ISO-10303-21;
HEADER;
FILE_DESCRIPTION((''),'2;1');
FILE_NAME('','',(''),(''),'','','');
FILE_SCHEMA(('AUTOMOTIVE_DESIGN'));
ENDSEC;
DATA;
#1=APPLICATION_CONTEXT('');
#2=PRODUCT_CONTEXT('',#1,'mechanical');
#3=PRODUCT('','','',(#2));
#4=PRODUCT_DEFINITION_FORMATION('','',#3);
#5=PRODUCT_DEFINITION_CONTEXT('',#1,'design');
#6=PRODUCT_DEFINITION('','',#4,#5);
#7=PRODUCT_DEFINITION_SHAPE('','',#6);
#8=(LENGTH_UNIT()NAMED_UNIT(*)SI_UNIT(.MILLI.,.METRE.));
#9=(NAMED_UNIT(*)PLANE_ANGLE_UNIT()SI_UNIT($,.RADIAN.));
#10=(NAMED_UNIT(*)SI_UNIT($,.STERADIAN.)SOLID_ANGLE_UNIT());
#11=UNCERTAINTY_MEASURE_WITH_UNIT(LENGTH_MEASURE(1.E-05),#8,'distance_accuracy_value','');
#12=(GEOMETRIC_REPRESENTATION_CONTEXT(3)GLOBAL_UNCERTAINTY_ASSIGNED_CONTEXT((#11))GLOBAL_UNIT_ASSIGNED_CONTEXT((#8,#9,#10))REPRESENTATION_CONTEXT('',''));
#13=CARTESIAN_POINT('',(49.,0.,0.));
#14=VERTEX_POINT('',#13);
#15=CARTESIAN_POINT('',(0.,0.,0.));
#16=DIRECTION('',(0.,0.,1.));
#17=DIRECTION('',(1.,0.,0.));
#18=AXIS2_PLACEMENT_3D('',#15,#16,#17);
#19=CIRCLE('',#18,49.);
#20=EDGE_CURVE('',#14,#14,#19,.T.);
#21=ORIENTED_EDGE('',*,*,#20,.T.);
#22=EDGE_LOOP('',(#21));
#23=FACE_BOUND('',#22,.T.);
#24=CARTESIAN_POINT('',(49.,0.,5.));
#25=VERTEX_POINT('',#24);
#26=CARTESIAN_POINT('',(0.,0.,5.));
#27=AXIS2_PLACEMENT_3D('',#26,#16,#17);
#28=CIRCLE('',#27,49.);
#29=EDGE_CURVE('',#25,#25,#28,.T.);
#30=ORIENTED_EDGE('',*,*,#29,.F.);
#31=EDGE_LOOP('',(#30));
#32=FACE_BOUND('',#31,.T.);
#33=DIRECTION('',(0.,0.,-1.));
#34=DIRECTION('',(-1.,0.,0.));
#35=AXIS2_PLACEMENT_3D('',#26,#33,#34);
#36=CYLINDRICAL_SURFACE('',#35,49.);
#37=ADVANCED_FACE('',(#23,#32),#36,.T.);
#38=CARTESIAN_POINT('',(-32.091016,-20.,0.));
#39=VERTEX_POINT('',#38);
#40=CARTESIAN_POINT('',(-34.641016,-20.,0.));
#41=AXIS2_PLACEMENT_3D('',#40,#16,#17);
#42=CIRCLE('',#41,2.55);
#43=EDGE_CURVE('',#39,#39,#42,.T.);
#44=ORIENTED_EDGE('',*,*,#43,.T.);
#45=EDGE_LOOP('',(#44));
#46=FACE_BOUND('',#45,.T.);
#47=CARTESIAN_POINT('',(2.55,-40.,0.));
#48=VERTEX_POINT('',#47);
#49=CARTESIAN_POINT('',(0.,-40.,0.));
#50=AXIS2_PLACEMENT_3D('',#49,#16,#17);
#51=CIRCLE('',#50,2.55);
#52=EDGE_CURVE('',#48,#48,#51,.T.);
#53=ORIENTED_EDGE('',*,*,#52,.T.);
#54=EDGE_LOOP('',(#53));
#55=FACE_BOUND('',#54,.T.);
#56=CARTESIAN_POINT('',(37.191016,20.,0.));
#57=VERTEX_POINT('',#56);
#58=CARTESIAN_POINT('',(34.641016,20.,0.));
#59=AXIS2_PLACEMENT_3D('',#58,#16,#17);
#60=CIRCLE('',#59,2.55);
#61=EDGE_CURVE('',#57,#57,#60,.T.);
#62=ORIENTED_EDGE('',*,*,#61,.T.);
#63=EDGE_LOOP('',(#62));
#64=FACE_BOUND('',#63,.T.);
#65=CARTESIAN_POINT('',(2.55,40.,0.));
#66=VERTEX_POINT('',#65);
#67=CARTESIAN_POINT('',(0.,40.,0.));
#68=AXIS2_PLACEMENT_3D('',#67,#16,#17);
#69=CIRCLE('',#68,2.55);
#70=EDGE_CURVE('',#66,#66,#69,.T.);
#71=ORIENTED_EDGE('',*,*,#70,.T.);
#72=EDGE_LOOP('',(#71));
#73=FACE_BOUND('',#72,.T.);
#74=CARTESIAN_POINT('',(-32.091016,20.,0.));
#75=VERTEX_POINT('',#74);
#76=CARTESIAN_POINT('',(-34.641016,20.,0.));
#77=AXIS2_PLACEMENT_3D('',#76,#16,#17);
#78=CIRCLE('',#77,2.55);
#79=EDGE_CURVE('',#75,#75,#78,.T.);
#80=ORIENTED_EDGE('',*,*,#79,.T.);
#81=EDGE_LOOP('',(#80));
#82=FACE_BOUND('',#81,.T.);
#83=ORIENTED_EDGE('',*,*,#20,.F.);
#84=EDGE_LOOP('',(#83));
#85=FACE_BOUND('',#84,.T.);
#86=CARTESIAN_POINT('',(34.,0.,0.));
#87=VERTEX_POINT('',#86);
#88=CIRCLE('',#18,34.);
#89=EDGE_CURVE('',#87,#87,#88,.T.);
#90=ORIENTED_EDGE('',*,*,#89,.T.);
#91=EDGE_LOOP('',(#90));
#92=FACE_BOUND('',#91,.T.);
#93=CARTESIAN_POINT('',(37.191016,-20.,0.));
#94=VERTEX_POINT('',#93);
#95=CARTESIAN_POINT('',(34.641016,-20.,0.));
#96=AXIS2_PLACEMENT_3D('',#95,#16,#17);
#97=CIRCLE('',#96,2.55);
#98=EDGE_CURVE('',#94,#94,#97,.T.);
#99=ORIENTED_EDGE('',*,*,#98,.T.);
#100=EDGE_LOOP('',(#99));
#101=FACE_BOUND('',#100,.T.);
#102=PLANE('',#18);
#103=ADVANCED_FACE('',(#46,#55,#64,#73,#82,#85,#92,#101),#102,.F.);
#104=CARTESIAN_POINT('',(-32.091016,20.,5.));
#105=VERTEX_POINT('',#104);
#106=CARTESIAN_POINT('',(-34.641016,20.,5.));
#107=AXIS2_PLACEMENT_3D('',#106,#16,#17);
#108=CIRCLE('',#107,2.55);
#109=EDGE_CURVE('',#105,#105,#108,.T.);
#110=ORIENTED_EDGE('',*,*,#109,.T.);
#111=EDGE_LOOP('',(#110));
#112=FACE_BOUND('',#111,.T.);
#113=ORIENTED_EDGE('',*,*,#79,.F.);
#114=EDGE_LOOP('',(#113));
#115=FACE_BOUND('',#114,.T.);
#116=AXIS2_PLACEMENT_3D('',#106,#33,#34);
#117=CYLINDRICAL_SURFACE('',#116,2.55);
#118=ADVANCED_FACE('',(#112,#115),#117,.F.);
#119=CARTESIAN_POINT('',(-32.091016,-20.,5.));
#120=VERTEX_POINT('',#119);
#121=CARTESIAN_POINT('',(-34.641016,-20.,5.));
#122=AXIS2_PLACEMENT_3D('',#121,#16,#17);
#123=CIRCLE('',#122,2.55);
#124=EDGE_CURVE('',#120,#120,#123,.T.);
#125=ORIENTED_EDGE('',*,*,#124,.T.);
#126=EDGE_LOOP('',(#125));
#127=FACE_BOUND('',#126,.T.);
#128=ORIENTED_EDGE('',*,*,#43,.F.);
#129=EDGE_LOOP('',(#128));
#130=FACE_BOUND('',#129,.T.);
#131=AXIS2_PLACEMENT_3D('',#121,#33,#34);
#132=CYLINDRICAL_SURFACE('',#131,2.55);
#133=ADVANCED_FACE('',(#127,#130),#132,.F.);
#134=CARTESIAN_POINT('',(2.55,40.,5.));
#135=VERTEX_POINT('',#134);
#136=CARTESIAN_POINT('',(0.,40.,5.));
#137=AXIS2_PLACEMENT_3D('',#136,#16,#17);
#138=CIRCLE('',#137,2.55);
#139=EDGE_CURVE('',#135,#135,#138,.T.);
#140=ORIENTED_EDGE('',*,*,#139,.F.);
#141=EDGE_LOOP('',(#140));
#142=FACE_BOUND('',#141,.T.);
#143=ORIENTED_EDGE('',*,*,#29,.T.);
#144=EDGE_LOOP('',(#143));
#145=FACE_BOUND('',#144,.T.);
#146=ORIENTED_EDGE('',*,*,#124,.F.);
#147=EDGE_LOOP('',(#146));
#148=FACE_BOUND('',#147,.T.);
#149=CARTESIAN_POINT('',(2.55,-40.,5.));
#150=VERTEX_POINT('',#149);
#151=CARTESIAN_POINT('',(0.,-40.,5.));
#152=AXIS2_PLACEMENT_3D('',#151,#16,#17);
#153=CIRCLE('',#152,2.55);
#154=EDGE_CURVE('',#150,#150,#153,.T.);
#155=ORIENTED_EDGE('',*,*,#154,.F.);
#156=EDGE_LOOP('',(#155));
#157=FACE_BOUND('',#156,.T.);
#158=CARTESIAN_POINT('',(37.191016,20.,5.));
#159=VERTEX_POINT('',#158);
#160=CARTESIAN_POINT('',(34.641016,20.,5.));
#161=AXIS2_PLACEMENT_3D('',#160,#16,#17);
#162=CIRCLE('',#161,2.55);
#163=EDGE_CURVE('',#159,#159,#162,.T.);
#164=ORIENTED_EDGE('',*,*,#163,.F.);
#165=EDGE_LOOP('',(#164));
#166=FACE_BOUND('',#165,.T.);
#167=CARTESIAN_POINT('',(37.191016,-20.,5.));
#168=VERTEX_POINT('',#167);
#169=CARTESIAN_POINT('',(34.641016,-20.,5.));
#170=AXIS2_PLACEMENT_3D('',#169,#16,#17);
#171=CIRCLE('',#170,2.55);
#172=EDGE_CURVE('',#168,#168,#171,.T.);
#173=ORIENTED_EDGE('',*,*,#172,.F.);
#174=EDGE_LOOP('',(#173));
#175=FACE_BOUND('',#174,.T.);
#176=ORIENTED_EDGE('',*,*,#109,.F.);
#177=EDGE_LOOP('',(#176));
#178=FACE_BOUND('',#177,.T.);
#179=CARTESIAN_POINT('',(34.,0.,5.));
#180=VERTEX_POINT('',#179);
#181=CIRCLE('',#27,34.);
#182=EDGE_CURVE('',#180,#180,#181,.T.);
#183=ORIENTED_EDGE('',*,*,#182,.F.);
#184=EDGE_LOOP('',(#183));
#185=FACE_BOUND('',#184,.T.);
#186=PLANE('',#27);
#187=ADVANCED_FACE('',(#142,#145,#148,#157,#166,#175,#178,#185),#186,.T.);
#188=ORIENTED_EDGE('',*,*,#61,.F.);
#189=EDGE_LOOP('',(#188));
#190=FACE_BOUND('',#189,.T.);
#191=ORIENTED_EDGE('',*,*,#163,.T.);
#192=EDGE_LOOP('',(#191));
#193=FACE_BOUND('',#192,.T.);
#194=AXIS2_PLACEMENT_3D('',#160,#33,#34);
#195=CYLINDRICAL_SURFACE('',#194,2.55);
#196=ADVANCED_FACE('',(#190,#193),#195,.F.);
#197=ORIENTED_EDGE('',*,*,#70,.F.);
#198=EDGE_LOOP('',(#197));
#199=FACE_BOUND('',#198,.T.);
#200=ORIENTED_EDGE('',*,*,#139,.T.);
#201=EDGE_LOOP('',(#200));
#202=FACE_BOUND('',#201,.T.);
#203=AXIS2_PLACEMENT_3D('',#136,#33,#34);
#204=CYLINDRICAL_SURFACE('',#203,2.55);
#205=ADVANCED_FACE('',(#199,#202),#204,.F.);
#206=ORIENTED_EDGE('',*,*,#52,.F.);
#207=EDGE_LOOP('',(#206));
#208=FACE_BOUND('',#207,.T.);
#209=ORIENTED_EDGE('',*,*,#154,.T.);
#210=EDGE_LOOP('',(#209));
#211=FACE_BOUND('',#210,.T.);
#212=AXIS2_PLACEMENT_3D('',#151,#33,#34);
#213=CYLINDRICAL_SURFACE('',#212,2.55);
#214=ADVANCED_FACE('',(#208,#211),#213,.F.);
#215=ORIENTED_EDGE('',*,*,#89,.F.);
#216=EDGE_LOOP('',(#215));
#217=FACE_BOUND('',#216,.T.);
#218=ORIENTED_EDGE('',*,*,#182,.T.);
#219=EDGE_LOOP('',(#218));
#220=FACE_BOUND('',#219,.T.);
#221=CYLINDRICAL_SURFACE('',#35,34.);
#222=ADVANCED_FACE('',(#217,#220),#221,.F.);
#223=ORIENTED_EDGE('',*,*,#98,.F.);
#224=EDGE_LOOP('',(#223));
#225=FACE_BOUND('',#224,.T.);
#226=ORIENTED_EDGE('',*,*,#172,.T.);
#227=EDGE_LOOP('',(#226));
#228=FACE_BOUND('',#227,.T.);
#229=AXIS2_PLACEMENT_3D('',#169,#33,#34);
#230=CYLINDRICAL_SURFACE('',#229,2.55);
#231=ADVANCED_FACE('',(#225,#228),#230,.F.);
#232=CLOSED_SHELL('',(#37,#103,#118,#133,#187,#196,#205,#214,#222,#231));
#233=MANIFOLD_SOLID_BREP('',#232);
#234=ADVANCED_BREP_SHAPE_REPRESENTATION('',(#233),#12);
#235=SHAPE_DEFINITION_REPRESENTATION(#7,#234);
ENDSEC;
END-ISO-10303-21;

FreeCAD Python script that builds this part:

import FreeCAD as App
import Part
import Sketcher
Q = App.Units.Quantity

doc = App.newDocument("Part")
body = doc.addObject("PartDesign::Body", "Body")

sketch1 = body.newObject("Sketcher::SketchObject", "Sketch")
sketch1.AttachmentSupport = (doc.getObject("XY_Plane"), [""])
sketch1.MapMode = "FlatFace"
sketch1.addGeometry([
    Part.Circle(App.Vector(0, 0, 0), App.Vector(0, 0, 1), 49),
    Part.Circle(App.Vector(0, 0, 0), App.Vector(0, 0, 1), 34),
], False)
sketch1.addConstraint([
    Sketcher.Constraint("Coincident", 0, 3, -1, 1),
    Sketcher.Constraint("Coincident", 1, 3, -1, 1),
    Sketcher.Constraint("Diameter", 0, Q("98 mm")),
    Sketcher.Constraint("Diameter", 1, Q("68 mm")),
])
pad1 = body.newObject("PartDesign::Pad", "Pad")
pad1.Profile = sketch1
pad1.Length = 5

sketch2 = body.newObject("Sketcher::SketchObject", "Sketch001")
sketch2.AttachmentSupport = (doc.getObject("XY_Plane"), [""])
sketch2.MapMode = "FlatFace"
sketch2.addGeometry([
    Part.Circle(App.Vector(0, 40, 0), App.Vector(0, 0, 1), 2.55),
    Part.Circle(App.Vector(34.641016, 20, 0), App.Vector(0, 0, 1), 2.55),
    Part.Circle(App.Vector(34.641016, -20, 0), App.Vector(0, 0, 1), 2.55),
    Part.Circle(App.Vector(0, -40, 0), App.Vector(0, 0, 1), 2.55),
    Part.Circle(App.Vector(-34.641016, -20, 0), App.Vector(0, 0, 1), 2.55),
    Part.Circle(App.Vector(-34.641016, 20, 0), App.Vector(0, 0, 1), 2.55),
], False)
sketch2.addConstraint([
    Sketcher.Constraint("Equal", 0, 1),
    Sketcher.Constraint("Equal", 1, 2),
    Sketcher.Constraint("Equal", 2, 3),
    Sketcher.Constraint("Equal", 3, 4),
    Sketcher.Constraint("Equal", 4, 5),
    Sketcher.Constraint("Symmetric", 0, 3, 3, 3, -1, 1),
    Sketcher.Constraint("Symmetric", 1, 3, 4, 3, -1, 1),
    Sketcher.Constraint("Symmetric", 2, 3, 5, 3, -1, 1),
    Sketcher.Constraint("Symmetric", 2, 3, 4, 3, -2),
    Sketcher.Constraint("PointOnObject", 0, 3, -2),
    Sketcher.Constraint("Diameter", 0, Q("5.1 mm")),
    Sketcher.Constraint("DistanceY", -1, 1, 0, 3, Q("40 mm")),
    Sketcher.Constraint("DistanceY", -1, 1, 1, 3, Q("20 mm")),
    Sketcher.Constraint("DistanceX", -1, 1, 1, 3, Q("34.641016 mm")),
])
pocket1 = body.newObject("PartDesign::Pocket", "Pocket")
pocket1.Profile = sketch2
pocket1.Type = "ThroughAll"
pocket1.Reversed = True

doc.recompute()
